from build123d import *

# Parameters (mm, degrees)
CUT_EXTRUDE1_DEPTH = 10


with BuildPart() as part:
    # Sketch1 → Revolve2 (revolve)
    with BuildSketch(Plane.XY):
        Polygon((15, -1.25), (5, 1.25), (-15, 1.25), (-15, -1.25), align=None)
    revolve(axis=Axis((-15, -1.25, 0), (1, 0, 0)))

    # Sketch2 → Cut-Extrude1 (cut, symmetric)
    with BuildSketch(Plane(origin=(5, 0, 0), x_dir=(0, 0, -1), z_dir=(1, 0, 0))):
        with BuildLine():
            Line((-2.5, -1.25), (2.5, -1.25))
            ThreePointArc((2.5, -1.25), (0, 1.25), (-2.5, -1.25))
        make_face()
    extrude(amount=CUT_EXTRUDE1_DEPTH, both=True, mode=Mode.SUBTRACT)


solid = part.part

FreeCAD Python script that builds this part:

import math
import FreeCAD as App
import Part
import Sketcher
from FreeCAD import Vector


def add_polygon(sketch, points):
    """Adds a closed chain of lines whose ends are joined by coincident constraints."""
    first, n = sketch.GeometryCount, len(points)
    for a, b in zip(points, points[1:] + points[:1]):
        sketch.addGeometry(Part.LineSegment(App.Vector(*a, 0), App.Vector(*b, 0)), False)
    for i in range(n):
        sketch.addConstraint(Sketcher.Constraint("Coincident", first + i, 2, first + (i + 1) % n, 1))

doc = App.newDocument("Part")
body = doc.addObject("PartDesign::Body", "Body")

# Sketch on XY plane
sketch1 = body.newObject("Sketcher::SketchObject", "Sketch")
sketch1.AttachmentSupport = (doc.getObject("XY_Plane"), [""])
sketch1.MapMode = "FlatFace"
add_polygon(sketch1, [(15, -1.2), (5, 1.2), (-15, 1.2), (-15, -1.2)])  # lines 0-3
sketch1.addGeometry(Part.LineSegment(Vector(-15, -1.2, 0), Vector(15, -1.2, 0)), True)  # axis
sketch1.addConstraint(Sketcher.Constraint("Horizontal", 1))
sketch1.addConstraint(Sketcher.Constraint("Vertical", 2))
sketch1.addConstraint(Sketcher.Constraint("Horizontal", 3))
sketch1.addConstraint(Sketcher.Constraint("Horizontal", 4))
sketch1.addConstraint(Sketcher.Constraint("Coincident", 4, 1, 2, 2))
sketch1.addConstraint(Sketcher.Constraint("Symmetric", 1, 2, 3, 2, -1, 1))
sketch1.addConstraint(Sketcher.Constraint("Equal", 3, 4))
sketch1.addConstraint(Sketcher.Constraint("DistanceX", 1, 2, 1, 1, 20.0))
sketch1.addConstraint(Sketcher.Constraint("DistanceX", 3, 1, 3, 2, 30.0))
sketch1.addConstraint(Sketcher.Constraint("DistanceY", 2, 2, 2, 1, 2.5))
revolution = body.newObject("PartDesign::Revolution", "Revolution")
revolution.Profile = sketch1
revolution.ReferenceAxis = (sketch1, ["Axis0"])
revolution.Angle = 360

# Sketch on YZ plane
sketch2 = body.newObject("Sketcher::SketchObject", "Sketch001")
sketch2.AttachmentSupport = (doc.getObject("YZ_Plane"), [""])
sketch2.MapMode = "FlatFace"
sketch2.AttachmentOffset = App.Placement(Vector(0, 0, 5), App.Rotation())
sketch2.addGeometry(Part.LineSegment(Vector(-1.2, 2.5, 0), Vector(-1.2, -2.5, 0)), False)
sketch2.addGeometry(Part.ArcOfCircle(Part.Circle(Vector(-1.2, 0, 0), Vector(0, 0, 1), 2.5), math.radians(-90), math.radians(90)), False)
sketch2.addConstraint(Sketcher.Constraint("Coincident", 0, 1, 1, 2))
sketch2.addConstraint(Sketcher.Constraint("Coincident", 1, 1, 0, 2))
sketch2.addConstraint(Sketcher.Constraint("Vertical", 0))
sketch2.addConstraint(Sketcher.Constraint("PointOnObject", 1, 3, -1))
sketch2.addConstraint(Sketcher.Constraint("Vertical", 1, 3, 0, 1))
sketch2.addConstraint(Sketcher.Constraint("Radius", 1, 2.5))
sketch2.addConstraint(Sketcher.Constraint("DistanceX", 1, 3, -1, 1, 1.25))
pocket1 = body.newObject("PartDesign::Pocket", "Pocket")
pocket1.Profile = sketch2
pocket1.Length = 20
pocket1.Midplane = True

doc.recompute()
